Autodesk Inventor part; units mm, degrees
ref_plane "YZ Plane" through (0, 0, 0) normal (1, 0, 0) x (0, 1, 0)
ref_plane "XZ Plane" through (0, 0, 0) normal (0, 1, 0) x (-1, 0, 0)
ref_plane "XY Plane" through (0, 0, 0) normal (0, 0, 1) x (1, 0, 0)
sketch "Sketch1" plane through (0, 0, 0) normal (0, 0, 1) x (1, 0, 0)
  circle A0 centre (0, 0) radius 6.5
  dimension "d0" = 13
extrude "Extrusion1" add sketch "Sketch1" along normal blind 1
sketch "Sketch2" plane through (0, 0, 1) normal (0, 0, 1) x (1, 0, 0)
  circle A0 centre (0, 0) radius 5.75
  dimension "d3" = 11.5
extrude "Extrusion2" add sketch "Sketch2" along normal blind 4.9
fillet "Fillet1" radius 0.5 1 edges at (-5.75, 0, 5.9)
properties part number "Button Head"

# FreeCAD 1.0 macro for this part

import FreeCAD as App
import Part
import Sketcher

V = App.Vector
Q = App.Units.Quantity


def edges_at(feature, points):
    """Names of the edges that pass closest to the given points."""
    edges = feature.Shape.Edges
    near = lambda p: min(range(len(edges)), key=lambda i: edges[i].distToShape(Part.Vertex(*p))[0])
    return sorted({f"Edge{near(p) + 1}" for p in points})

doc = App.newDocument("Part")
body = doc.addObject("PartDesign::Body", "Body")

# Sketch on XY plane
sketch1 = body.newObject("Sketcher::SketchObject", "Sketch")
sketch1.AttachmentSupport = (doc.getObject("XY_Plane"), [""])
sketch1.MapMode = "FlatFace"
sketch1.addGeometry(Part.Circle(V(0, 0, 0), V(0, 0, 1), 6.5), False)
sketch1.addConstraint(Sketcher.Constraint("Coincident", 0, 3, -1, 1))
sketch1.addConstraint(Sketcher.Constraint("Diameter", 0, Q("13 mm")))
pad1 = body.newObject("PartDesign::Pad", "Pad")
pad1.Profile = sketch1
pad1.Length = 1

# Sketch on XY plane
sketch2 = body.newObject("Sketcher::SketchObject", "Sketch001")
sketch2.AttachmentSupport = (doc.getObject("XY_Plane"), [""])
sketch2.MapMode = "FlatFace"
sketch2.AttachmentOffset = App.Placement(V(0, 0, 1), App.Rotation())
sketch2.addGeometry(Part.Circle(V(0, 0, 0), V(0, 0, 1), 5.75), False)
sketch2.addConstraint(Sketcher.Constraint("Coincident", 0, 3, -1, 1))
sketch2.addConstraint(Sketcher.Constraint("Diameter", 0, Q("11.5 mm")))
pad2 = body.newObject("PartDesign::Pad", "Pad001")
pad2.Profile = sketch2
pad2.Length = 4.9
doc.recompute()

fillet = body.newObject("PartDesign::Fillet", "Fillet")
fillet.Base = (pad2, edges_at(pad2, [(-5.75, 0, 5.9)]))
fillet.Radius = 0.5

doc.recompute()
